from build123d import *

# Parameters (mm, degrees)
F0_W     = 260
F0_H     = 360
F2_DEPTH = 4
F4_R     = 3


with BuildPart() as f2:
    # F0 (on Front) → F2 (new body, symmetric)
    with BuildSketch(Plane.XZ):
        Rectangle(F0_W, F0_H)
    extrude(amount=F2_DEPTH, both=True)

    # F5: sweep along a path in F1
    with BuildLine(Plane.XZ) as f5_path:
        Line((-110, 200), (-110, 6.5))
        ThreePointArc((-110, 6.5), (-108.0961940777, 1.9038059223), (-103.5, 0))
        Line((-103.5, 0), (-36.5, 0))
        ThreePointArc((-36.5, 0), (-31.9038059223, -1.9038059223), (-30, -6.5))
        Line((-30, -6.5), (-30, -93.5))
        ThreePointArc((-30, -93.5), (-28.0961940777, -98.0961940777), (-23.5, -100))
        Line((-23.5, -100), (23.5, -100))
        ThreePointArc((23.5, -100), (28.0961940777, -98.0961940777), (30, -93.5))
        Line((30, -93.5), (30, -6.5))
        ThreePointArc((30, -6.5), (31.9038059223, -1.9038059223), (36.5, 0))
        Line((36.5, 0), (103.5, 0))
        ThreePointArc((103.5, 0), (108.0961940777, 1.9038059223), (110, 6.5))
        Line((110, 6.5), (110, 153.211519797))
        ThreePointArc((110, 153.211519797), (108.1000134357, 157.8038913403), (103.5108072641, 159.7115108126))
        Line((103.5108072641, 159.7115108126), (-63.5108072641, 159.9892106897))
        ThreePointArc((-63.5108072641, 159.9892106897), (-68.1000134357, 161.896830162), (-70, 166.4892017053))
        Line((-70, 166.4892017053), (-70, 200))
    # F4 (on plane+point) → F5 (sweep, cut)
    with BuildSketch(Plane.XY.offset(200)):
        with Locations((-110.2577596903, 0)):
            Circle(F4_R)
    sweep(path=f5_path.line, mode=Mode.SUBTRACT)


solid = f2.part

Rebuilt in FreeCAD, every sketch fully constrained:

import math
import FreeCAD as App
import Part
import Sketcher

V = App.Vector

doc = App.newDocument("Part")
params = doc.addObject("Spreadsheet::Sheet", "Params")
for row, (alias, value) in enumerate([
    ("sketch1_width", "260 mm"),
    ("sketch1_height", "360 mm"),
    ("pad1_length", "8 mm"),
    ("sketch2_diameter", "6 mm"),
    ("sketch3_radius", "6.5 mm"),
    ("sketch3_width", "67 mm"),
    ("sketch3_width2", "47 mm"),
    ("sketch3_height", "87 mm"),
    ("sketch3_height2", "193.5 mm"),
], start=1):
    params.set(f"A{row}", alias)
    params.set(f"B{row}", "=" + value)
    params.setAlias(f"B{row}", alias)

body = doc.addObject("PartDesign::Body", "Body")

sketch1 = doc.addObject("Sketcher::SketchObject", "Sketch")
body.addObject(sketch1)
sketch1.AttachmentSupport = (doc.XZ_Plane, [""])
sketch1.MapMode = "FlatFace"
sketch1.addGeometry([
    Part.LineSegment(V(-130, 180, 0), V(-130, -180, 0)),
    Part.LineSegment(V(-130, -180, 0), V(130, -180, 0)),
    Part.LineSegment(V(130, -180, 0), V(130, 180, 0)),
    Part.LineSegment(V(130, 180, 0), V(-130, 180, 0)),
], False)
sketch1.addConstraint([
    Sketcher.Constraint("Coincident", 0, 2, 1, 1),
    Sketcher.Constraint("Coincident", 1, 2, 2, 1),
    Sketcher.Constraint("Coincident", 2, 2, 3, 1),
    Sketcher.Constraint("Coincident", 3, 2, 0, 1),
    Sketcher.Constraint("Vertical", 0),
    Sketcher.Constraint("Horizontal", 1),
    Sketcher.Constraint("Vertical", 2),
    Sketcher.Constraint("Horizontal", 3),
    Sketcher.Constraint("Symmetric", 0, 2, 2, 2, -1, 1),
    Sketcher.Constraint("DistanceX", 1, 1, 1, 2, 260.0),
    Sketcher.Constraint("DistanceY", 0, 2, 0, 1, 360.0),
])
sketch1.setExpression("Constraints[9]", "Params.sketch1_width")
sketch1.setExpression("Constraints[10]", "Params.sketch1_height")
pad1 = doc.addObject("PartDesign::Pad", "Pad")
body.addObject(pad1)
pad1.Profile = sketch1
pad1.setExpression("Length", "Params.pad1_length")
pad1.Midplane = True

sketch2 = doc.addObject("Sketcher::SketchObject", "Sketch001")
body.addObject(sketch2)
sketch2.AttachmentSupport = (doc.XY_Plane, [""])
sketch2.MapMode = "FlatFace"
sketch2.AttachmentOffset = App.Placement(V(0, 0, 200), App.Rotation())
sketch2.addGeometry(Part.Circle(V(-110.25776, 0, 0), V(0, 0, 1), 3), False)
sketch2.addConstraint([
    Sketcher.Constraint("PointOnObject", 0, 3, -1),
    Sketcher.Constraint("Diameter", 0, 6.0),
    Sketcher.Constraint("DistanceX", 0, 3, -1, 1, 110.25776),
])
sketch2.setExpression("Constraints[1]", "Params.sketch2_diameter")

sketch3 = doc.addObject("Sketcher::SketchObject", "Sketch002")
body.addObject(sketch3)
sketch3.AttachmentSupport = (doc.XZ_Plane, [""])
sketch3.MapMode = "FlatFace"
sketch3.addGeometry([
    Part.LineSegment(V(-110, 200, 0), V(-110, 6.5, 0)),
    Part.ArcOfCircle(Part.Circle(V(-103.5, 6.5, 0), V(0, 0, 1), 6.5), math.radians(180), math.radians(270)),
    Part.LineSegment(V(-103.5, 0, 0), V(-36.5, 0, 0)),
    Part.ArcOfCircle(Part.Circle(V(-36.5, -6.5, 0), V(0, 0, 1), 6.5), math.radians(0), math.radians(90)),
    Part.LineSegment(V(-30, -6.5, 0), V(-30, -93.5, 0)),
    Part.ArcOfCircle(Part.Circle(V(-23.5, -93.5, 0), V(0, 0, 1), 6.5), math.radians(180), math.radians(270)),
    Part.LineSegment(V(-23.5, -100, 0), V(23.5, -100, 0)),
    Part.ArcOfCircle(Part.Circle(V(23.5, -93.5, 0), V(0, 0, 1), 6.5), math.radians(-90), math.radians(0)),
    Part.LineSegment(V(30, -93.5, 0), V(30, -6.5, 0)),
    Part.ArcOfCircle(Part.Circle(V(36.5, -6.5, 0), V(0, 0, 1), 6.5), math.radians(90), math.radians(180)),
    Part.LineSegment(V(36.5, 0, 0), V(103.5, 0, 0)),
    Part.ArcOfCircle(Part.Circle(V(103.5, 6.5, 0), V(0, 0, 1), 6.5), math.radians(-90), math.radians(0)),
    Part.LineSegment(V(110, 6.5, 0), V(110, 153.21152, 0)),
    Part.ArcOfCircle(Part.Circle(V(103.5, 153.21152, 0), V(0, 0, 1), 6.5), math.radians(0), math.radians(89.904737)),
    Part.LineSegment(V(103.510807, 159.711511, 0), V(-63.510807, 159.989211, 0)),
    Part.ArcOfCircle(Part.Circle(V(-63.5, 166.489202, 0), V(0, 0, 1), 6.5), math.radians(180), math.radians(269.904737)),
    Part.LineSegment(V(-70, 166.489202, 0), V(-70, 200, 0)),
], False)
sketch3.addConstraint([
    Sketcher.Constraint("Tangent", 0, 2, 1, 1),
    Sketcher.Constraint("Tangent", 1, 2, 2, 1),
    Sketcher.Constraint("Tangent", 2, 2, 3, 2),
    Sketcher.Constraint("Tangent", 3, 1, 4, 1),
    Sketcher.Constraint("Tangent", 4, 2, 5, 1),
    Sketcher.Constraint("Tangent", 5, 2, 6, 1),
    Sketcher.Constraint("Tangent", 6, 2, 7, 1),
    Sketcher.Constraint("Tangent", 7, 2, 8, 1),
    Sketcher.Constraint("Tangent", 8, 2, 9, 2),
    Sketcher.Constraint("Tangent", 9, 1, 10, 1),
    Sketcher.Constraint("Tangent", 10, 2, 11, 1),
    Sketcher.Constraint("Tangent", 11, 2, 12, 1),
    Sketcher.Constraint("Tangent", 12, 2, 13, 1),
    Sketcher.Constraint("Tangent", 13, 2, 14, 1),
    Sketcher.Constraint("Tangent", 14, 2, 15, 2),
    Sketcher.Constraint("Tangent", 15, 1, 16, 1),
    Sketcher.Constraint("Vertical", 0),
    Sketcher.Constraint("Horizontal", 2),
    Sketcher.Constraint("Vertical", 4),
    Sketcher.Constraint("Horizontal", 6),
    Sketcher.Constraint("Vertical", 8),
    Sketcher.Constraint("Horizontal", 10),
    Sketcher.Constraint("Vertical", 12),
    Sketcher.Constraint("Vertical", 16),
    Sketcher.Constraint("Equal", 1, 3),
    Sketcher.Constraint("Equal", 3, 5),
    Sketcher.Constraint("Equal", 5, 7),
    Sketcher.Constraint("Equal", 7, 9),
    Sketcher.Constraint("Equal", 9, 11),
    Sketcher.Constraint("Equal", 11, 13),
    Sketcher.Constraint("Equal", 13, 15),
    Sketcher.Constraint("Symmetric", 2, 2, 9, 1, -1, 1),
    Sketcher.Constraint("Symmetric", 1, 3, 11, 3, -2),
    Sketcher.Constraint("Horizontal", 0, 1, 16, 2),
    Sketcher.Constraint("Radius", 1, 6.5),
    Sketcher.Constraint("DistanceX", 2, 1, 2, 2, 67.0),
    Sketcher.Constraint("DistanceX", 6, 1, 6, 2, 47.0),
    Sketcher.Constraint("DistanceY", 4, 2, 4, 1, 87.0),
    Sketcher.Constraint("DistanceY", 0, 2, 0, 1, 193.5),
    Sketcher.Constraint("DistanceX", 15, 1, -1, 1, 70.0),
    Sketcher.Constraint("DistanceY", 16, 1, 16, 2, 33.510798),
    Sketcher.Constraint("DistanceY", 12, 1, 12, 2, 146.71152),
])
sketch3.setExpression("Constraints[34]", "Params.sketch3_radius")
sketch3.setExpression("Constraints[35]", "Params.sketch3_width")
sketch3.setExpression("Constraints[36]", "Params.sketch3_width2")
sketch3.setExpression("Constraints[37]", "Params.sketch3_height")
sketch3.setExpression("Constraints[38]", "Params.sketch3_height2")
doc.recompute()

subtractivepipe = doc.addObject("PartDesign::SubtractivePipe", "SubtractivePipe")
body.addObject(subtractivepipe)
subtractivepipe.Profile = sketch2
subtractivepipe.Spine = (sketch3, ["Edge1", "Edge2", "Edge3", "Edge4", "Edge5", "Edge6", "Edge7", "Edge8", "Edge9", "Edge10", "Edge11", "Edge12", "Edge13", "Edge14", "Edge15", "Edge16", "Edge17"])

doc.recompute()
